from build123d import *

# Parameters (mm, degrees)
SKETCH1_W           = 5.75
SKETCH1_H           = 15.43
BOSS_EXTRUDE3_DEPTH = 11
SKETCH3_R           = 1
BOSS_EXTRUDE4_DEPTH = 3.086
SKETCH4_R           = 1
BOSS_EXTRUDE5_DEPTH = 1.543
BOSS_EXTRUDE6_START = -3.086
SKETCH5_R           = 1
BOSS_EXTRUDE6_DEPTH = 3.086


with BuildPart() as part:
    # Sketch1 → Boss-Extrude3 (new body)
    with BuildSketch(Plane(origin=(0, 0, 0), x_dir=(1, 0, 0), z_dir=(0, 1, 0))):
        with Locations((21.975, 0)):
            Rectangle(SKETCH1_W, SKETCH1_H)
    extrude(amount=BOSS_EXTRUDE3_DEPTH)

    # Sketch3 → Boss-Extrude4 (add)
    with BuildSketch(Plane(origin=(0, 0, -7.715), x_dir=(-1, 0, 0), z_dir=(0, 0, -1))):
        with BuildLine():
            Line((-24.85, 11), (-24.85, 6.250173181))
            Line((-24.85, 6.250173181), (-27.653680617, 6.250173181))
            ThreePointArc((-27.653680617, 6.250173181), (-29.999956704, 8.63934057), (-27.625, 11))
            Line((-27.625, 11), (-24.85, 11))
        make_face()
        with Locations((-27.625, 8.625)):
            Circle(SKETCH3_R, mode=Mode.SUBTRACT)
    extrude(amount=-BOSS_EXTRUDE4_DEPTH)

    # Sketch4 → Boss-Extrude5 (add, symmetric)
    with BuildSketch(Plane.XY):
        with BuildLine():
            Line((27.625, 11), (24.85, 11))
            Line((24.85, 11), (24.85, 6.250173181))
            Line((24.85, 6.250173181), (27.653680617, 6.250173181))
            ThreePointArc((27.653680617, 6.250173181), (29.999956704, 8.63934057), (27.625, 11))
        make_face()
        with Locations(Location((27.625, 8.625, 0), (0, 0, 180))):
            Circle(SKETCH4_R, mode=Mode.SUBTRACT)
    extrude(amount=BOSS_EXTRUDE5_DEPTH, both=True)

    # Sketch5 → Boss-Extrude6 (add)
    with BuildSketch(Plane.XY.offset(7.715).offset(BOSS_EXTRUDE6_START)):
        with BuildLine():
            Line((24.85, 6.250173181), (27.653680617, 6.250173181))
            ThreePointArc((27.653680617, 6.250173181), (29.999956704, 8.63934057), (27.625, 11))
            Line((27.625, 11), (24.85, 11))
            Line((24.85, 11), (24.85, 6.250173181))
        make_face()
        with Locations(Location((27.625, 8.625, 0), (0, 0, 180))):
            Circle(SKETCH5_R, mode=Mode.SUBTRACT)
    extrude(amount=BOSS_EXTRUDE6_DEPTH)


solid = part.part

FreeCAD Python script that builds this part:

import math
import FreeCAD as App
import Part
import Sketcher


def add_polygon(sketch, points):
    """Adds a closed chain of lines whose ends are joined by coincident constraints."""
    first, n = sketch.GeometryCount, len(points)
    for a, b in zip(points, points[1:] + points[:1]):
        sketch.addGeometry(Part.LineSegment(App.Vector(*a, 0), App.Vector(*b, 0)), False)
    for i in range(n):
        sketch.addConstraint(Sketcher.Constraint("Coincident", first + i, 2, first + (i + 1) % n, 1))

doc = App.newDocument("Part")
body = doc.addObject("PartDesign::Body", "Body")

# Sketch on XZ plane
sketch1 = body.newObject("Sketcher::SketchObject", "Sketch")
sketch1.AttachmentSupport = (doc.getObject("XZ_Plane"), [""])
sketch1.MapMode = "FlatFace"
add_polygon(sketch1, [(19, -8), (19, 8), (25, 8), (25, -8)])  # lines 0-3
sketch1.addConstraint([
    Sketcher.Constraint("Vertical", 0),
    Sketcher.Constraint("Horizontal", 1),
    Sketcher.Constraint("Vertical", 2),
    Sketcher.Constraint("Horizontal", 3),
    Sketcher.Constraint("DistanceX", 1, 1, 1, 2, 5.75),
    Sketcher.Constraint("DistanceY", 0, 1, 0, 2, 15.43),
    Sketcher.Constraint("DistanceX", -1, 1, 0, 2, 19.1),
    Sketcher.Constraint("DistanceY", -1, 1, 0, 2, 7.715),
])
pad1 = body.newObject("PartDesign::Pad", "Pad")
pad1.Profile = sketch1
pad1.Length = 11
pad1.Reversed = True

# Sketch on XY plane
sketch2 = body.newObject("Sketcher::SketchObject", "Sketch001")
sketch2.AttachmentSupport = (doc.getObject("XY_Plane"), [""])
sketch2.MapMode = "FlatFace"
sketch2.AttachmentOffset = App.Placement(App.Vector(0, 0, -7.715), App.Rotation())
sketch2.addGeometry([
    Part.LineSegment(App.Vector(24.9, 6.3, 0), App.Vector(24.9, 11, 0)),  # 0
    Part.LineSegment(App.Vector(24.9, 11, 0), App.Vector(27.6, 11, 0)),  # 1
    Part.ArcOfCircle(Part.Circle(App.Vector(27.6, 8.6, 0), App.Vector(0, 0, 1), 2.4), math.radians(-89), math.radians(90)),  # 2
    Part.LineSegment(App.Vector(27.7, 6.3, 0), App.Vector(24.9, 6.3, 0)),  # 3
    Part.Circle(App.Vector(27.6, 8.6, 0), App.Vector(0, 0, 1), 1),  # 4
], False)
sketch2.addConstraint([
    Sketcher.Constraint("Coincident", 0, 2, 1, 1),
    Sketcher.Constraint("Tangent", 1, 2, 2, 2),
    Sketcher.Constraint("Coincident", 2, 1, 3, 1),
    Sketcher.Constraint("Coincident", 3, 2, 0, 1),
    Sketcher.Constraint("Vertical", 0),
    Sketcher.Constraint("Horizontal", 1),
    Sketcher.Constraint("Horizontal", 3),
    Sketcher.Constraint("Coincident", 4, 3, 2, 3),
    Sketcher.Constraint("Diameter", 4, 2.0),
    Sketcher.Constraint("DistanceY", -1, 1, 0, 2, 11.0),
    Sketcher.Constraint("Radius", 2, 2.375),
    Sketcher.Constraint("DistanceX", 1, 1, 1, 2, 2.775),
    Sketcher.Constraint("DistanceX", -1, 1, 0, 2, 24.85),
    Sketcher.Constraint("DistanceX", 3, 2, 3, 1, 2.803681),
])
pad2 = body.newObject("PartDesign::Pad", "Pad001")
pad2.Profile = sketch2
pad2.Length = 3.086

# Sketch on XY plane
sketch3 = body.newObject("Sketcher::SketchObject", "Sketch002")
sketch3.AttachmentSupport = (doc.getObject("XY_Plane"), [""])
sketch3.MapMode = "FlatFace"
sketch3.addGeometry([
    Part.LineSegment(App.Vector(27.6, 11, 0), App.Vector(24.9, 11, 0)),  # 0
    Part.LineSegment(App.Vector(24.9, 11, 0), App.Vector(24.9, 6.3, 0)),  # 1
    Part.LineSegment(App.Vector(24.9, 6.3, 0), App.Vector(27.7, 6.3, 0)),  # 2
    Part.ArcOfCircle(Part.Circle(App.Vector(27.6, 8.6, 0), App.Vector(0, 0, 1), 2.4), math.radians(-89), math.radians(90)),  # 3
    Part.Circle(App.Vector(27.6, 8.6, 0), App.Vector(0, 0, 1), 1),  # 4
], False)
sketch3.addConstraint([
    Sketcher.Constraint("Coincident", 0, 2, 1, 1),
    Sketcher.Constraint("Coincident", 1, 2, 2, 1),
    Sketcher.Constraint("Coincident", 2, 2, 3, 1),
    Sketcher.Constraint("Tangent", 3, 2, 0, 1),
    Sketcher.Constraint("Horizontal", 0),
    Sketcher.Constraint("Vertical", 1),
    Sketcher.Constraint("Horizontal", 2),
    Sketcher.Constraint("Coincident", 4, 3, 3, 3),
    Sketcher.Constraint("Diameter", 4, 2.0),
    Sketcher.Constraint("DistanceY", -1, 1, 0, 2, 11.0),
    Sketcher.Constraint("Radius", 3, 2.375),
    Sketcher.Constraint("DistanceX", 0, 2, 0, 1, 2.775),
    Sketcher.Constraint("DistanceX", -1, 1, 0, 2, 24.85),
    Sketcher.Constraint("DistanceX", 2, 1, 2, 2, 2.803681),
])
pad3 = body.newObject("PartDesign::Pad", "Pad002")
pad3.Profile = sketch3
pad3.Length = 3.086
pad3.Midplane = True

# Sketch on XY plane
sketch4 = body.newObject("Sketcher::SketchObject", "Sketch003")
sketch4.AttachmentSupport = (doc.getObject("XY_Plane"), [""])
sketch4.MapMode = "FlatFace"
sketch4.AttachmentOffset = App.Placement(App.Vector(0, 0, 4.629), App.Rotation())
sketch4.addGeometry([
    Part.LineSegment(App.Vector(24.9, 6.3, 0), App.Vector(27.7, 6.3, 0)),  # 0
    Part.ArcOfCircle(Part.Circle(App.Vector(27.6, 8.6, 0), App.Vector(0, 0, 1), 2.4), math.radians(-89), math.radians(90)),  # 1
    Part.LineSegment(App.Vector(27.6, 11, 0), App.Vector(24.9, 11, 0)),  # 2
    Part.LineSegment(App.Vector(24.9, 11, 0), App.Vector(24.9, 6.3, 0)),  # 3
    Part.Circle(App.Vector(27.6, 8.6, 0), App.Vector(0, 0, 1), 1),  # 4
], False)
sketch4.addConstraint([
    Sketcher.Constraint("Coincident", 0, 2, 1, 1),
    Sketcher.Constraint("Tangent", 1, 2, 2, 1),
    Sketcher.Constraint("Coincident", 2, 2, 3, 1),
    Sketcher.Constraint("Coincident", 3, 2, 0, 1),
    Sketcher.Constraint("Horizontal", 0),
    Sketcher.Constraint("Horizontal", 2),
    Sketcher.Constraint("Vertical", 3),
    Sketcher.Constraint("Coincident", 4, 3, 1, 3),
    Sketcher.Constraint("Diameter", 4, 2.0),
    Sketcher.Constraint("DistanceY", -1, 1, 1, 2, 11.0),
    Sketcher.Constraint("Radius", 1, 2.375),
    Sketcher.Constraint("DistanceX", 2, 2, 2, 1, 2.775),
    Sketcher.Constraint("DistanceX", -1, 1, 2, 2, 24.85),
    Sketcher.Constraint("DistanceX", 0, 1, 0, 2, 2.803681),
])
pad4 = body.newObject("PartDesign::Pad", "Pad003")
pad4.Profile = sketch4
pad4.Length = 3.086

doc.recompute()
